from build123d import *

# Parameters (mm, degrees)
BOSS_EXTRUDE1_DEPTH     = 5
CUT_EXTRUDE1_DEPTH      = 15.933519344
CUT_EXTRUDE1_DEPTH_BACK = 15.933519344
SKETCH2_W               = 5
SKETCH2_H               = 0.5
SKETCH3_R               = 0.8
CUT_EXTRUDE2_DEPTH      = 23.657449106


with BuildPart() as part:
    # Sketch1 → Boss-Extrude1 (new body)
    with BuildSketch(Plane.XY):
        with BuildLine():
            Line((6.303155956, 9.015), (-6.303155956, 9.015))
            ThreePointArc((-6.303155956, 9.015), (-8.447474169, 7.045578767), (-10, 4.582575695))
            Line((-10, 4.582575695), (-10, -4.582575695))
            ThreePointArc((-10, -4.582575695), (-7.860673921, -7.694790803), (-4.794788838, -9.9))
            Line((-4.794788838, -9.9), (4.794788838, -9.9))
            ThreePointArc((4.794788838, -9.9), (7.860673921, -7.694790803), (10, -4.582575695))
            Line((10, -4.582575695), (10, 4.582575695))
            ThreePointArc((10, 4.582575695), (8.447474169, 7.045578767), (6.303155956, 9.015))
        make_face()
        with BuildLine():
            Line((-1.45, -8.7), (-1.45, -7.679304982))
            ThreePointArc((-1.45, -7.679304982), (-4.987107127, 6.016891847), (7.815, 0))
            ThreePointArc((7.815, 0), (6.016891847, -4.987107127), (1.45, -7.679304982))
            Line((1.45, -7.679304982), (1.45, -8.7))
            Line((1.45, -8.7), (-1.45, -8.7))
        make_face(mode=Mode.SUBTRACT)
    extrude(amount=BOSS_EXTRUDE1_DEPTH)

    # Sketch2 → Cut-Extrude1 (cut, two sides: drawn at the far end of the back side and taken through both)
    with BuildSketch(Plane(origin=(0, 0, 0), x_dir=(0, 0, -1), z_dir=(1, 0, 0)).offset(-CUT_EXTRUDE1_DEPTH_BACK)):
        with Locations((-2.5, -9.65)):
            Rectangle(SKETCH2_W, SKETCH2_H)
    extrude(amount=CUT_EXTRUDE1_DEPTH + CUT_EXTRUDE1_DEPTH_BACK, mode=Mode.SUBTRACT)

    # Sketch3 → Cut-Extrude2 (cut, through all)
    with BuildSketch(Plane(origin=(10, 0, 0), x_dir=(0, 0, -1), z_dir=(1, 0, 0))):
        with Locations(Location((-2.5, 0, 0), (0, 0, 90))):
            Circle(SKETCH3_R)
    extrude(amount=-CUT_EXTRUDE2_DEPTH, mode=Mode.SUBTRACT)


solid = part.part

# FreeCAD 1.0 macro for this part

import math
import FreeCAD as App
import Part
import Sketcher
from FreeCAD import Vector
Q = App.Units.Quantity


def add_polygon(sketch, points):
    """Adds a closed chain of lines whose ends are joined by coincident constraints."""
    first, n = sketch.GeometryCount, len(points)
    for a, b in zip(points, points[1:] + points[:1]):
        sketch.addGeometry(Part.LineSegment(App.Vector(*a, 0), App.Vector(*b, 0)), False)
    for i in range(n):
        sketch.addConstraint(Sketcher.Constraint("Coincident", first + i, 2, first + (i + 1) % n, 1))

doc = App.newDocument("Part")
body = doc.addObject("PartDesign::Body", "Body")

# Sketch on XY plane
sketch1 = doc.addObject("Sketcher::SketchObject", "Sketch")
body.addObject(sketch1)
sketch1.AttachmentSupport = (doc.XY_Plane, [""])
sketch1.MapMode = "FlatFace"
sketch1.addGeometry(Part.LineSegment(Vector(6.303156, 9.015, 0), Vector(-6.303156, 9.015, 0)), False)
sketch1.addGeometry(Part.ArcOfCircle(Part.Circle(Vector(0, 0, 0), Vector(0, 0, 1), 11), math.radians(124.960682), math.radians(155.380023)), False)
sketch1.addGeometry(Part.LineSegment(Vector(-10, 4.582576, 0), Vector(-10, -4.582576, 0)), False)
sketch1.addGeometry(Part.ArcOfCircle(Part.Circle(Vector(0, 0, 0), Vector(0, 0, 1), 11), math.radians(-155.380023), math.radians(-115.841933)), False)
sketch1.addGeometry(Part.LineSegment(Vector(-4.794789, -9.9, 0), Vector(4.794789, -9.9, 0)), False)
sketch1.addGeometry(Part.ArcOfCircle(Part.Circle(Vector(0, 0, 0), Vector(0, 0, 1), 11), math.radians(-64.158067), math.radians(-24.619977)), False)
sketch1.addGeometry(Part.LineSegment(Vector(10, -4.582576, 0), Vector(10, 4.582576, 0)), False)
sketch1.addGeometry(Part.ArcOfCircle(Part.Circle(Vector(0, 0, 0), Vector(0, 0, 1), 11), math.radians(24.619977), math.radians(55.039318)), False)
sketch1.addGeometry(Part.LineSegment(Vector(1.45, -8.7, 0), Vector(-1.45, -8.7, 0)), False)
sketch1.addGeometry(Part.LineSegment(Vector(-1.45, -8.7, 0), Vector(-1.45, -7.679305, 0)), False)
sketch1.addGeometry(Part.ArcOfCircle(Part.Circle(Vector(0, 0, 0), Vector(0, 0, 1), 7.815), math.radians(0), math.radians(259.307346)), False)
sketch1.addGeometry(Part.ArcOfCircle(Part.Circle(Vector(0, 0, 0), Vector(0, 0, 1), 7.815), math.radians(-79.307346), math.radians(0)), False)
sketch1.addGeometry(Part.LineSegment(Vector(1.45, -7.679305, 0), Vector(1.45, -8.7, 0)), False)
sketch1.addConstraint(Sketcher.Constraint("Coincident", 0, 2, 1, 1))
sketch1.addConstraint(Sketcher.Constraint("Coincident", 1, 2, 2, 1))
sketch1.addConstraint(Sketcher.Constraint("Coincident", 2, 2, 3, 1))
sketch1.addConstraint(Sketcher.Constraint("Coincident", 3, 2, 4, 1))
sketch1.addConstraint(Sketcher.Constraint("Coincident", 4, 2, 5, 1))
sketch1.addConstraint(Sketcher.Constraint("Coincident", 5, 2, 6, 1))
sketch1.addConstraint(Sketcher.Constraint("Coincident", 6, 2, 7, 1))
sketch1.addConstraint(Sketcher.Constraint("Coincident", 7, 2, 0, 1))
sketch1.addConstraint(Sketcher.Constraint("Coincident", 8, 2, 9, 1))
sketch1.addConstraint(Sketcher.Constraint("Coincident", 9, 2, 10, 2))
sketch1.addConstraint(Sketcher.Constraint("Tangent", 10, 1, 11, 2))
sketch1.addConstraint(Sketcher.Constraint("Coincident", 11, 1, 12, 1))
sketch1.addConstraint(Sketcher.Constraint("Coincident", 12, 2, 8, 1))
sketch1.addConstraint(Sketcher.Constraint("Horizontal", 0))
sketch1.addConstraint(Sketcher.Constraint("Vertical", 2))
sketch1.addConstraint(Sketcher.Constraint("Horizontal", 4))
sketch1.addConstraint(Sketcher.Constraint("Vertical", 6))
sketch1.addConstraint(Sketcher.Constraint("Horizontal", 8))
sketch1.addConstraint(Sketcher.Constraint("Vertical", 9))
sketch1.addConstraint(Sketcher.Constraint("Vertical", 12))
sketch1.addConstraint(Sketcher.Constraint("Coincident", 1, 3, -1, 1))
sketch1.addConstraint(Sketcher.Constraint("Coincident", 3, 3, -1, 1))
sketch1.addConstraint(Sketcher.Constraint("Coincident", 5, 3, -1, 1))
sketch1.addConstraint(Sketcher.Constraint("Coincident", 7, 3, -1, 1))
sketch1.addConstraint(Sketcher.Constraint("Coincident", 10, 3, -1, 1))
sketch1.addConstraint(Sketcher.Constraint("Equal", 1, 3))
sketch1.addConstraint(Sketcher.Constraint("Equal", 3, 5))
sketch1.addConstraint(Sketcher.Constraint("Equal", 5, 7))
sketch1.addConstraint(Sketcher.Constraint("Equal", 10, 11))
sketch1.addConstraint(Sketcher.Constraint("PointOnObject", 10, 1, -1))
sketch1.addConstraint(Sketcher.Constraint("Horizontal", 2, 2, 5, 2))
sketch1.addConstraint(Sketcher.Constraint("Horizontal", 9, 2, 11, 1))
sketch1.addConstraint(Sketcher.Constraint("Radius", 1, Q("11 mm")))
sketch1.addConstraint(Sketcher.Constraint("DistanceX", 8, 2, 8, 1, Q("2.9 mm")))
sketch1.addConstraint(Sketcher.Constraint("DistanceX", 1, 2, -1, 1, Q("10 mm")))
sketch1.addConstraint(Sketcher.Constraint("Radius", 10, Q("7.815 mm")))
sketch1.addConstraint(Sketcher.Constraint("DistanceY", 3, 2, -1, 1, Q("9.9 mm")))
sketch1.addConstraint(Sketcher.Constraint("DistanceY", 8, 2, -1, 1, Q("8.7 mm")))
sketch1.addConstraint(Sketcher.Constraint("DistanceY", -1, 1, 0, 2, Q("9.015 mm")))
pad1 = doc.addObject("PartDesign::Pad", "Pad")
body.addObject(pad1)
pad1.Profile = sketch1
pad1.Length = 5

# Sketch on YZ plane
sketch2 = doc.addObject("Sketcher::SketchObject", "Sketch001")
body.addObject(sketch2)
sketch2.AttachmentSupport = (doc.YZ_Plane, [""])
sketch2.MapMode = "FlatFace"
add_polygon(sketch2, [(-9.4, 5), (-9.9, 5), (-9.9, 0), (-9.4, 0)])  # lines 0-3
sketch2.addConstraint(Sketcher.Constraint("Horizontal", 0))
sketch2.addConstraint(Sketcher.Constraint("Vertical", 1))
sketch2.addConstraint(Sketcher.Constraint("Horizontal", 2))
sketch2.addConstraint(Sketcher.Constraint("Vertical", 3))
sketch2.addConstraint(Sketcher.Constraint("PointOnObject", 1, 2, -1))
sketch2.addConstraint(Sketcher.Constraint("DistanceY", 1, 2, 1, 1, Q("5 mm")))
sketch2.addConstraint(Sketcher.Constraint("DistanceX", 0, 2, 0, 1, Q("0.5 mm")))
sketch2.addConstraint(Sketcher.Constraint("DistanceX", 0, 2, -1, 1, Q("9.9 mm")))
pocket1 = doc.addObject("PartDesign::Pocket", "Pocket")
body.addObject(pocket1)
pocket1.Profile = sketch2
pocket1.Type = "ThroughAll"
pocket1.Midplane = True

# Sketch on YZ plane
sketch3 = doc.addObject("Sketcher::SketchObject", "Sketch002")
body.addObject(sketch3)
sketch3.AttachmentSupport = (doc.YZ_Plane, [""])
sketch3.MapMode = "FlatFace"
sketch3.AttachmentOffset = App.Placement(Vector(0, 0, 10), App.Rotation())
sketch3.addGeometry(Part.Circle(Vector(0, 2.5, 0), Vector(0, 0, 1), 0.8), False)
sketch3.addConstraint(Sketcher.Constraint("PointOnObject", 0, 3, -2))
sketch3.addConstraint(Sketcher.Constraint("Diameter", 0, Q("1.6 mm")))
sketch3.addConstraint(Sketcher.Constraint("DistanceY", -1, 1, 0, 3, Q("2.5 mm")))
pocket2 = doc.addObject("PartDesign::Pocket", "Pocket001")
body.addObject(pocket2)
pocket2.Profile = sketch3
pocket2.Type = "ThroughAll"

doc.recompute()
